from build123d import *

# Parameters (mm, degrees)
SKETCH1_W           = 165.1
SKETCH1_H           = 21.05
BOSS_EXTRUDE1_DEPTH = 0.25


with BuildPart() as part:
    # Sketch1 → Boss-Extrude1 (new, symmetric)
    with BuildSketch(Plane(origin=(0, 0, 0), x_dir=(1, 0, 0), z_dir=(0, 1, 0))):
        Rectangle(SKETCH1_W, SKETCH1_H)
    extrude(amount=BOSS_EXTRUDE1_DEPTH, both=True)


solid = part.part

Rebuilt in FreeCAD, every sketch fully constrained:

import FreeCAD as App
import Part
import Sketcher
from FreeCAD import Vector
Q = App.Units.Quantity


def add_polygon(sketch, points):
    """Adds a closed chain of lines whose ends are joined by coincident constraints."""
    first, n = sketch.GeometryCount, len(points)
    for a, b in zip(points, points[1:] + points[:1]):
        sketch.addGeometry(Part.LineSegment(App.Vector(*a, 0), App.Vector(*b, 0)), False)
    for i in range(n):
        sketch.addConstraint(Sketcher.Constraint("Coincident", first + i, 2, first + (i + 1) % n, 1))

doc = App.newDocument("Part")
params = doc.addObject("Spreadsheet::Sheet", "Params")
for row, (alias, value) in enumerate([
    ("sketch1_width", "6.5 in"),
    ("pad1_length", "0.5 mm"),
], start=1):
    params.set(f"A{row}", alias)
    params.set(f"B{row}", "=" + value)
    params.setAlias(f"B{row}", alias)

body = doc.addObject("PartDesign::Body", "Body")

# Sketch on XZ plane
sketch1 = doc.addObject("Sketcher::SketchObject", "Sketch")
body.addObject(sketch1)
sketch1.AttachmentSupport = (doc.XZ_Plane, [""])
sketch1.MapMode = "FlatFace"
add_polygon(sketch1, [(-82.55, -10.525), (-82.55, 10.525), (82.55, 10.525), (82.55, -10.525)])  # lines 0-3
sketch1.addConstraint(Sketcher.Constraint("Vertical", 0))
sketch1.addConstraint(Sketcher.Constraint("Horizontal", 1))
sketch1.addConstraint(Sketcher.Constraint("Vertical", 2))
sketch1.addConstraint(Sketcher.Constraint("Horizontal", 3))
sketch1.addConstraint(Sketcher.Constraint("Symmetric", 0, 2, 2, 2, -1, 1))
sketch1.addConstraint(Sketcher.Constraint("DistanceX", 1, 1, 1, 2, Q("6.5 in")))
sketch1.addConstraint(Sketcher.Constraint("DistanceY", 0, 1, 0, 2, 21.05))
sketch1.setExpression("Constraints[9]", "Params.sketch1_width")
pad1 = doc.addObject("PartDesign::Pad", "Pad")
body.addObject(pad1)
pad1.Profile = sketch1
pad1.setExpression("Length", "Params.pad1_length")
pad1.Midplane = True

doc.recompute()
